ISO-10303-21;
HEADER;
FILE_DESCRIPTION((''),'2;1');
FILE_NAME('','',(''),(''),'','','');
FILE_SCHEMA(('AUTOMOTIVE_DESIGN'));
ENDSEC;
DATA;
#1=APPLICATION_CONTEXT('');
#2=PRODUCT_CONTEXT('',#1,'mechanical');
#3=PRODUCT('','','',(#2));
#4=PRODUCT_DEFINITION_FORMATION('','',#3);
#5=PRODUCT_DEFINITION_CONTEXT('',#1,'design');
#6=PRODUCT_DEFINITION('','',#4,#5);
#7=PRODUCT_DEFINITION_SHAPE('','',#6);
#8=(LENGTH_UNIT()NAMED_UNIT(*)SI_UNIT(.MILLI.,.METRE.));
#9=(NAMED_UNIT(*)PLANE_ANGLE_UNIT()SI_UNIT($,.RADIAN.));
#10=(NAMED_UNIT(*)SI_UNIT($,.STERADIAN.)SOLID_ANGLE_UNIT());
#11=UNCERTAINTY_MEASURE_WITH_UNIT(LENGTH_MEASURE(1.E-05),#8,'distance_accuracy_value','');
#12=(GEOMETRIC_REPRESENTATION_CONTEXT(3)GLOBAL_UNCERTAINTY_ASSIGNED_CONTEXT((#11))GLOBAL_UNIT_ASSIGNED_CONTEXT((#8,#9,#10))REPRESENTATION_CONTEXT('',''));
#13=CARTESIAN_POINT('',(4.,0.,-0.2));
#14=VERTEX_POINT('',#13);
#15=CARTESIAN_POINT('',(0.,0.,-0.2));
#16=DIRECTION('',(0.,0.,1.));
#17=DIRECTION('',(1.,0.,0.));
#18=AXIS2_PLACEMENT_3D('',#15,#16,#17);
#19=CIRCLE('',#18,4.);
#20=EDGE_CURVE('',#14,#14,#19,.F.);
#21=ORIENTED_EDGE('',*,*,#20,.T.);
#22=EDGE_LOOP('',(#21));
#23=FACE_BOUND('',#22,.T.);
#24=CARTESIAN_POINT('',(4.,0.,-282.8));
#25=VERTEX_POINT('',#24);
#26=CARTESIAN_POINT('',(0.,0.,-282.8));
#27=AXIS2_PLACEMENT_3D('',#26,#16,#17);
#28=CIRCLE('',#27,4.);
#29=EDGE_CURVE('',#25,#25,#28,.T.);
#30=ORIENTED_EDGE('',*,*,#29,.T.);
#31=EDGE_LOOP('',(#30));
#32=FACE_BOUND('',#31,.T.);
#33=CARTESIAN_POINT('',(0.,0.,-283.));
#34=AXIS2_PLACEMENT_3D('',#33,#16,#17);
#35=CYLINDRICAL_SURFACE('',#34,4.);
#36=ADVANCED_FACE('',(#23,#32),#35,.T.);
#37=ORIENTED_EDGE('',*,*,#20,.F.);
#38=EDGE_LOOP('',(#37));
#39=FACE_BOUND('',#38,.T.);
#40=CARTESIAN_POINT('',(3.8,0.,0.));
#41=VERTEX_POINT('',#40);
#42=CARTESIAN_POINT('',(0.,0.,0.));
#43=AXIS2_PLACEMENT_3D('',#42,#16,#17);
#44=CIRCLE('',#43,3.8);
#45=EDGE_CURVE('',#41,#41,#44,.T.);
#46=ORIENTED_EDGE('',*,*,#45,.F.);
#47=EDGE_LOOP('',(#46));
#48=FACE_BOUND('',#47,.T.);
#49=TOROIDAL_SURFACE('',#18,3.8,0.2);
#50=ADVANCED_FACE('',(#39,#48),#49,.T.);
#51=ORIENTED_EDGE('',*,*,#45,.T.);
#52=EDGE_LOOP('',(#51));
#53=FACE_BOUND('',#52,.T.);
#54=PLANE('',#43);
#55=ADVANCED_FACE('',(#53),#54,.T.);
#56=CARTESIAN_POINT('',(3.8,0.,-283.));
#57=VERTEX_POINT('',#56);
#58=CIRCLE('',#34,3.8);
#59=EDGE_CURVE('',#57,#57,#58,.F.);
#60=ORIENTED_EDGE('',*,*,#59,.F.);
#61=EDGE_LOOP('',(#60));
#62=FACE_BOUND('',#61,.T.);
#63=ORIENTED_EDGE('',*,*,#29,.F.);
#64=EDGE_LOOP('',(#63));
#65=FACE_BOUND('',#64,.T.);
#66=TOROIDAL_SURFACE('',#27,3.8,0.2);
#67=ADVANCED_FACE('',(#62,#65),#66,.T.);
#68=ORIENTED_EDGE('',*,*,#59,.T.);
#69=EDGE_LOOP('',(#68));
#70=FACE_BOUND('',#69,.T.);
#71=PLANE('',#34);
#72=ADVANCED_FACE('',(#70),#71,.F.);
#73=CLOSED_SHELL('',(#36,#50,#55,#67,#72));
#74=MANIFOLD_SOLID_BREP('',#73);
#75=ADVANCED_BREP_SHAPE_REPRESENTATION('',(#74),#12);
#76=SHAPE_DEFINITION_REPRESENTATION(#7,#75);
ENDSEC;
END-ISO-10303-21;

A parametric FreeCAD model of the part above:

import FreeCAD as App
import Part
import Sketcher
from FreeCAD import Vector


def edges_at(feature, points):
    """Names of the edges that pass closest to the given points."""
    edges = feature.Shape.Edges
    near = lambda p: min(range(len(edges)), key=lambda i: edges[i].distToShape(Part.Vertex(*p))[0])
    return sorted({f"Edge{near(p) + 1}" for p in points})

doc = App.newDocument("Part")
body = doc.addObject("PartDesign::Body", "Body")

# Sketch on XY plane
sketch1 = doc.addObject("Sketcher::SketchObject", "Sketch")
body.addObject(sketch1)
sketch1.AttachmentSupport = (doc.XY_Plane, [""])
sketch1.MapMode = "FlatFace"
sketch1.addGeometry(Part.Circle(Vector(0, 0, 0), Vector(0, 0, 1), 4), False)
sketch1.addConstraint(Sketcher.Constraint("Coincident", 0, 3, -1, 1))
sketch1.addConstraint(Sketcher.Constraint("Diameter", 0, 8.0))
pad1 = doc.addObject("PartDesign::Pad", "Pad")
body.addObject(pad1)
pad1.Profile = sketch1
pad1.Length = 283
pad1.Reversed = True
doc.recompute()

fillet = doc.addObject("PartDesign::Fillet", "Fillet")
body.addObject(fillet)
fillet.Base = (pad1, edges_at(pad1, [(-4, 0, 0), (-4, 0, -283)]))
fillet.Radius = 0.2

doc.recompute()
